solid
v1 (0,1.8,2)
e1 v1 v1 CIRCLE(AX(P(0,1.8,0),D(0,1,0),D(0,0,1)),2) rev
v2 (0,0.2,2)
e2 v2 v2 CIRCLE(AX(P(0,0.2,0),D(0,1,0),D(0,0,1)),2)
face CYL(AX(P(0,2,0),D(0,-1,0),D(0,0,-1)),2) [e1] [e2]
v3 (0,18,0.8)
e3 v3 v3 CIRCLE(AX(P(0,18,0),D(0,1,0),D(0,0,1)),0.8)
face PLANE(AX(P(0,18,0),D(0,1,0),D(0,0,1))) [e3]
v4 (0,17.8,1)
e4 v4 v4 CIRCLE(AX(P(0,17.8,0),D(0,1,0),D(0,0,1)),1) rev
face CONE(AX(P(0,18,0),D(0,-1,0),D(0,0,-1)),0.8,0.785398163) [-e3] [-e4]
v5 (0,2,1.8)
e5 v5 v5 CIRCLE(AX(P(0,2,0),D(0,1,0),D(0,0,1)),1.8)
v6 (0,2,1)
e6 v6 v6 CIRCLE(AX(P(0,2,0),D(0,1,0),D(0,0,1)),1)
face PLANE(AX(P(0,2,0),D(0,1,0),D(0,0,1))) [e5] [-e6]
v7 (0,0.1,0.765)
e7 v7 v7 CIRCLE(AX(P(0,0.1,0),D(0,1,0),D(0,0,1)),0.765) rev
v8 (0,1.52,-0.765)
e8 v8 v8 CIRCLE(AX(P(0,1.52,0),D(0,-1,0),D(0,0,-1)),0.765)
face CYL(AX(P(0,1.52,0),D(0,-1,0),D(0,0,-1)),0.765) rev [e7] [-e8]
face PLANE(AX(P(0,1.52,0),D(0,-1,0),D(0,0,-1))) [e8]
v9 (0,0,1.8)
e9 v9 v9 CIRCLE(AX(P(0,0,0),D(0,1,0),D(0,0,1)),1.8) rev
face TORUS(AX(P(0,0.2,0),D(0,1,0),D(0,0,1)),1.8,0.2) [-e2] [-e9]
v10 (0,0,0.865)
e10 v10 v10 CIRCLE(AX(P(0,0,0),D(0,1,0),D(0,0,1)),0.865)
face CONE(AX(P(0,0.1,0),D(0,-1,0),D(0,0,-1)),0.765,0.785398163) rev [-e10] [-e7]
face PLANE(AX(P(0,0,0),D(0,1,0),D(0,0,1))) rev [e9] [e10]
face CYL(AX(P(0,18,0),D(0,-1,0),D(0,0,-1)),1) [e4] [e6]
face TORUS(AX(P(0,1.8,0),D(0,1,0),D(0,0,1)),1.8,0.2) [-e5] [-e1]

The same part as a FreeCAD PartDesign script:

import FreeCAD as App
import Part
import Sketcher

V = App.Vector
Q = App.Units.Quantity


def edges_at(feature, points):
    """Names of the edges that pass closest to the given points."""
    edges = feature.Shape.Edges
    near = lambda p: min(range(len(edges)), key=lambda i: edges[i].distToShape(Part.Vertex(*p))[0])
    return sorted({f"Edge{near(p) + 1}" for p in points})

doc = App.newDocument("Part")
body = doc.addObject("PartDesign::Body", "Body")

# Sketch on XZ plane
sketch1 = body.newObject("Sketcher::SketchObject", "Sketch")
sketch1.AttachmentSupport = (doc.getObject("XZ_Plane"), [""])
sketch1.MapMode = "FlatFace"
sketch1.addGeometry(Part.Circle(V(0, 0, 0), V(0, 0, 1), 2), False)
sketch1.addConstraint([
    Sketcher.Constraint("Coincident", 0, 3, -1, 1),
    Sketcher.Constraint("Diameter", 0, Q("4 mm")),
])
pad1 = body.newObject("PartDesign::Pad", "Pad")
pad1.Profile = sketch1
pad1.Length = 2
pad1.Reversed = True

# Sketch on XZ plane
sketch2 = body.newObject("Sketcher::SketchObject", "Sketch001")
sketch2.AttachmentSupport = (doc.getObject("XZ_Plane"), [""])
sketch2.MapMode = "FlatFace"
sketch2.AttachmentOffset = App.Placement(V(0, 0, -2), App.Rotation())
sketch2.addGeometry(Part.Circle(V(0, 0, 0), V(0, 0, 1), 1), False)
sketch2.addConstraint([
    Sketcher.Constraint("Coincident", 0, 3, -1, 1),
    Sketcher.Constraint("Diameter", 0, Q("2 mm")),
])
pad2 = body.newObject("PartDesign::Pad", "Pad001")
pad2.Profile = sketch2
pad2.Length = 16
pad2.Reversed = True
doc.recompute()

fillet = body.newObject("PartDesign::Fillet", "Fillet")
fillet.Base = (pad2, edges_at(pad2, [(0, 0, -2), (0, 2, -2)]))
fillet.Radius = 0.2

# Sketch on XZ plane
sketch3 = body.newObject("Sketcher::SketchObject", "Sketch002")
sketch3.AttachmentSupport = (doc.getObject("XZ_Plane"), [""])
sketch3.MapMode = "FlatFace"
sketch3.addGeometry(Part.Circle(V(0, 0, 0), V(0, 0, 1), 0.8), False)
sketch3.addConstraint([
    Sketcher.Constraint("Coincident", 0, 3, -1, 1),
    Sketcher.Constraint("Diameter", 0, Q("1.53 mm")),
])
pocket1 = body.newObject("PartDesign::Pocket", "Pocket")
pocket1.Profile = sketch3
pocket1.Length = 1.52
doc.recompute()

chamfer = body.newObject("PartDesign::Chamfer", "Chamfer")
chamfer.Base = (pocket1, edges_at(pocket1, [(0, 0, 0.765)]))
chamfer.Size = 0.1
doc.recompute()

chamfer2 = body.newObject("PartDesign::Chamfer", "Chamfer001")
chamfer2.Base = (chamfer, edges_at(chamfer, [(0, 18, -1)]))
chamfer2.Size = 0.2

doc.recompute()
